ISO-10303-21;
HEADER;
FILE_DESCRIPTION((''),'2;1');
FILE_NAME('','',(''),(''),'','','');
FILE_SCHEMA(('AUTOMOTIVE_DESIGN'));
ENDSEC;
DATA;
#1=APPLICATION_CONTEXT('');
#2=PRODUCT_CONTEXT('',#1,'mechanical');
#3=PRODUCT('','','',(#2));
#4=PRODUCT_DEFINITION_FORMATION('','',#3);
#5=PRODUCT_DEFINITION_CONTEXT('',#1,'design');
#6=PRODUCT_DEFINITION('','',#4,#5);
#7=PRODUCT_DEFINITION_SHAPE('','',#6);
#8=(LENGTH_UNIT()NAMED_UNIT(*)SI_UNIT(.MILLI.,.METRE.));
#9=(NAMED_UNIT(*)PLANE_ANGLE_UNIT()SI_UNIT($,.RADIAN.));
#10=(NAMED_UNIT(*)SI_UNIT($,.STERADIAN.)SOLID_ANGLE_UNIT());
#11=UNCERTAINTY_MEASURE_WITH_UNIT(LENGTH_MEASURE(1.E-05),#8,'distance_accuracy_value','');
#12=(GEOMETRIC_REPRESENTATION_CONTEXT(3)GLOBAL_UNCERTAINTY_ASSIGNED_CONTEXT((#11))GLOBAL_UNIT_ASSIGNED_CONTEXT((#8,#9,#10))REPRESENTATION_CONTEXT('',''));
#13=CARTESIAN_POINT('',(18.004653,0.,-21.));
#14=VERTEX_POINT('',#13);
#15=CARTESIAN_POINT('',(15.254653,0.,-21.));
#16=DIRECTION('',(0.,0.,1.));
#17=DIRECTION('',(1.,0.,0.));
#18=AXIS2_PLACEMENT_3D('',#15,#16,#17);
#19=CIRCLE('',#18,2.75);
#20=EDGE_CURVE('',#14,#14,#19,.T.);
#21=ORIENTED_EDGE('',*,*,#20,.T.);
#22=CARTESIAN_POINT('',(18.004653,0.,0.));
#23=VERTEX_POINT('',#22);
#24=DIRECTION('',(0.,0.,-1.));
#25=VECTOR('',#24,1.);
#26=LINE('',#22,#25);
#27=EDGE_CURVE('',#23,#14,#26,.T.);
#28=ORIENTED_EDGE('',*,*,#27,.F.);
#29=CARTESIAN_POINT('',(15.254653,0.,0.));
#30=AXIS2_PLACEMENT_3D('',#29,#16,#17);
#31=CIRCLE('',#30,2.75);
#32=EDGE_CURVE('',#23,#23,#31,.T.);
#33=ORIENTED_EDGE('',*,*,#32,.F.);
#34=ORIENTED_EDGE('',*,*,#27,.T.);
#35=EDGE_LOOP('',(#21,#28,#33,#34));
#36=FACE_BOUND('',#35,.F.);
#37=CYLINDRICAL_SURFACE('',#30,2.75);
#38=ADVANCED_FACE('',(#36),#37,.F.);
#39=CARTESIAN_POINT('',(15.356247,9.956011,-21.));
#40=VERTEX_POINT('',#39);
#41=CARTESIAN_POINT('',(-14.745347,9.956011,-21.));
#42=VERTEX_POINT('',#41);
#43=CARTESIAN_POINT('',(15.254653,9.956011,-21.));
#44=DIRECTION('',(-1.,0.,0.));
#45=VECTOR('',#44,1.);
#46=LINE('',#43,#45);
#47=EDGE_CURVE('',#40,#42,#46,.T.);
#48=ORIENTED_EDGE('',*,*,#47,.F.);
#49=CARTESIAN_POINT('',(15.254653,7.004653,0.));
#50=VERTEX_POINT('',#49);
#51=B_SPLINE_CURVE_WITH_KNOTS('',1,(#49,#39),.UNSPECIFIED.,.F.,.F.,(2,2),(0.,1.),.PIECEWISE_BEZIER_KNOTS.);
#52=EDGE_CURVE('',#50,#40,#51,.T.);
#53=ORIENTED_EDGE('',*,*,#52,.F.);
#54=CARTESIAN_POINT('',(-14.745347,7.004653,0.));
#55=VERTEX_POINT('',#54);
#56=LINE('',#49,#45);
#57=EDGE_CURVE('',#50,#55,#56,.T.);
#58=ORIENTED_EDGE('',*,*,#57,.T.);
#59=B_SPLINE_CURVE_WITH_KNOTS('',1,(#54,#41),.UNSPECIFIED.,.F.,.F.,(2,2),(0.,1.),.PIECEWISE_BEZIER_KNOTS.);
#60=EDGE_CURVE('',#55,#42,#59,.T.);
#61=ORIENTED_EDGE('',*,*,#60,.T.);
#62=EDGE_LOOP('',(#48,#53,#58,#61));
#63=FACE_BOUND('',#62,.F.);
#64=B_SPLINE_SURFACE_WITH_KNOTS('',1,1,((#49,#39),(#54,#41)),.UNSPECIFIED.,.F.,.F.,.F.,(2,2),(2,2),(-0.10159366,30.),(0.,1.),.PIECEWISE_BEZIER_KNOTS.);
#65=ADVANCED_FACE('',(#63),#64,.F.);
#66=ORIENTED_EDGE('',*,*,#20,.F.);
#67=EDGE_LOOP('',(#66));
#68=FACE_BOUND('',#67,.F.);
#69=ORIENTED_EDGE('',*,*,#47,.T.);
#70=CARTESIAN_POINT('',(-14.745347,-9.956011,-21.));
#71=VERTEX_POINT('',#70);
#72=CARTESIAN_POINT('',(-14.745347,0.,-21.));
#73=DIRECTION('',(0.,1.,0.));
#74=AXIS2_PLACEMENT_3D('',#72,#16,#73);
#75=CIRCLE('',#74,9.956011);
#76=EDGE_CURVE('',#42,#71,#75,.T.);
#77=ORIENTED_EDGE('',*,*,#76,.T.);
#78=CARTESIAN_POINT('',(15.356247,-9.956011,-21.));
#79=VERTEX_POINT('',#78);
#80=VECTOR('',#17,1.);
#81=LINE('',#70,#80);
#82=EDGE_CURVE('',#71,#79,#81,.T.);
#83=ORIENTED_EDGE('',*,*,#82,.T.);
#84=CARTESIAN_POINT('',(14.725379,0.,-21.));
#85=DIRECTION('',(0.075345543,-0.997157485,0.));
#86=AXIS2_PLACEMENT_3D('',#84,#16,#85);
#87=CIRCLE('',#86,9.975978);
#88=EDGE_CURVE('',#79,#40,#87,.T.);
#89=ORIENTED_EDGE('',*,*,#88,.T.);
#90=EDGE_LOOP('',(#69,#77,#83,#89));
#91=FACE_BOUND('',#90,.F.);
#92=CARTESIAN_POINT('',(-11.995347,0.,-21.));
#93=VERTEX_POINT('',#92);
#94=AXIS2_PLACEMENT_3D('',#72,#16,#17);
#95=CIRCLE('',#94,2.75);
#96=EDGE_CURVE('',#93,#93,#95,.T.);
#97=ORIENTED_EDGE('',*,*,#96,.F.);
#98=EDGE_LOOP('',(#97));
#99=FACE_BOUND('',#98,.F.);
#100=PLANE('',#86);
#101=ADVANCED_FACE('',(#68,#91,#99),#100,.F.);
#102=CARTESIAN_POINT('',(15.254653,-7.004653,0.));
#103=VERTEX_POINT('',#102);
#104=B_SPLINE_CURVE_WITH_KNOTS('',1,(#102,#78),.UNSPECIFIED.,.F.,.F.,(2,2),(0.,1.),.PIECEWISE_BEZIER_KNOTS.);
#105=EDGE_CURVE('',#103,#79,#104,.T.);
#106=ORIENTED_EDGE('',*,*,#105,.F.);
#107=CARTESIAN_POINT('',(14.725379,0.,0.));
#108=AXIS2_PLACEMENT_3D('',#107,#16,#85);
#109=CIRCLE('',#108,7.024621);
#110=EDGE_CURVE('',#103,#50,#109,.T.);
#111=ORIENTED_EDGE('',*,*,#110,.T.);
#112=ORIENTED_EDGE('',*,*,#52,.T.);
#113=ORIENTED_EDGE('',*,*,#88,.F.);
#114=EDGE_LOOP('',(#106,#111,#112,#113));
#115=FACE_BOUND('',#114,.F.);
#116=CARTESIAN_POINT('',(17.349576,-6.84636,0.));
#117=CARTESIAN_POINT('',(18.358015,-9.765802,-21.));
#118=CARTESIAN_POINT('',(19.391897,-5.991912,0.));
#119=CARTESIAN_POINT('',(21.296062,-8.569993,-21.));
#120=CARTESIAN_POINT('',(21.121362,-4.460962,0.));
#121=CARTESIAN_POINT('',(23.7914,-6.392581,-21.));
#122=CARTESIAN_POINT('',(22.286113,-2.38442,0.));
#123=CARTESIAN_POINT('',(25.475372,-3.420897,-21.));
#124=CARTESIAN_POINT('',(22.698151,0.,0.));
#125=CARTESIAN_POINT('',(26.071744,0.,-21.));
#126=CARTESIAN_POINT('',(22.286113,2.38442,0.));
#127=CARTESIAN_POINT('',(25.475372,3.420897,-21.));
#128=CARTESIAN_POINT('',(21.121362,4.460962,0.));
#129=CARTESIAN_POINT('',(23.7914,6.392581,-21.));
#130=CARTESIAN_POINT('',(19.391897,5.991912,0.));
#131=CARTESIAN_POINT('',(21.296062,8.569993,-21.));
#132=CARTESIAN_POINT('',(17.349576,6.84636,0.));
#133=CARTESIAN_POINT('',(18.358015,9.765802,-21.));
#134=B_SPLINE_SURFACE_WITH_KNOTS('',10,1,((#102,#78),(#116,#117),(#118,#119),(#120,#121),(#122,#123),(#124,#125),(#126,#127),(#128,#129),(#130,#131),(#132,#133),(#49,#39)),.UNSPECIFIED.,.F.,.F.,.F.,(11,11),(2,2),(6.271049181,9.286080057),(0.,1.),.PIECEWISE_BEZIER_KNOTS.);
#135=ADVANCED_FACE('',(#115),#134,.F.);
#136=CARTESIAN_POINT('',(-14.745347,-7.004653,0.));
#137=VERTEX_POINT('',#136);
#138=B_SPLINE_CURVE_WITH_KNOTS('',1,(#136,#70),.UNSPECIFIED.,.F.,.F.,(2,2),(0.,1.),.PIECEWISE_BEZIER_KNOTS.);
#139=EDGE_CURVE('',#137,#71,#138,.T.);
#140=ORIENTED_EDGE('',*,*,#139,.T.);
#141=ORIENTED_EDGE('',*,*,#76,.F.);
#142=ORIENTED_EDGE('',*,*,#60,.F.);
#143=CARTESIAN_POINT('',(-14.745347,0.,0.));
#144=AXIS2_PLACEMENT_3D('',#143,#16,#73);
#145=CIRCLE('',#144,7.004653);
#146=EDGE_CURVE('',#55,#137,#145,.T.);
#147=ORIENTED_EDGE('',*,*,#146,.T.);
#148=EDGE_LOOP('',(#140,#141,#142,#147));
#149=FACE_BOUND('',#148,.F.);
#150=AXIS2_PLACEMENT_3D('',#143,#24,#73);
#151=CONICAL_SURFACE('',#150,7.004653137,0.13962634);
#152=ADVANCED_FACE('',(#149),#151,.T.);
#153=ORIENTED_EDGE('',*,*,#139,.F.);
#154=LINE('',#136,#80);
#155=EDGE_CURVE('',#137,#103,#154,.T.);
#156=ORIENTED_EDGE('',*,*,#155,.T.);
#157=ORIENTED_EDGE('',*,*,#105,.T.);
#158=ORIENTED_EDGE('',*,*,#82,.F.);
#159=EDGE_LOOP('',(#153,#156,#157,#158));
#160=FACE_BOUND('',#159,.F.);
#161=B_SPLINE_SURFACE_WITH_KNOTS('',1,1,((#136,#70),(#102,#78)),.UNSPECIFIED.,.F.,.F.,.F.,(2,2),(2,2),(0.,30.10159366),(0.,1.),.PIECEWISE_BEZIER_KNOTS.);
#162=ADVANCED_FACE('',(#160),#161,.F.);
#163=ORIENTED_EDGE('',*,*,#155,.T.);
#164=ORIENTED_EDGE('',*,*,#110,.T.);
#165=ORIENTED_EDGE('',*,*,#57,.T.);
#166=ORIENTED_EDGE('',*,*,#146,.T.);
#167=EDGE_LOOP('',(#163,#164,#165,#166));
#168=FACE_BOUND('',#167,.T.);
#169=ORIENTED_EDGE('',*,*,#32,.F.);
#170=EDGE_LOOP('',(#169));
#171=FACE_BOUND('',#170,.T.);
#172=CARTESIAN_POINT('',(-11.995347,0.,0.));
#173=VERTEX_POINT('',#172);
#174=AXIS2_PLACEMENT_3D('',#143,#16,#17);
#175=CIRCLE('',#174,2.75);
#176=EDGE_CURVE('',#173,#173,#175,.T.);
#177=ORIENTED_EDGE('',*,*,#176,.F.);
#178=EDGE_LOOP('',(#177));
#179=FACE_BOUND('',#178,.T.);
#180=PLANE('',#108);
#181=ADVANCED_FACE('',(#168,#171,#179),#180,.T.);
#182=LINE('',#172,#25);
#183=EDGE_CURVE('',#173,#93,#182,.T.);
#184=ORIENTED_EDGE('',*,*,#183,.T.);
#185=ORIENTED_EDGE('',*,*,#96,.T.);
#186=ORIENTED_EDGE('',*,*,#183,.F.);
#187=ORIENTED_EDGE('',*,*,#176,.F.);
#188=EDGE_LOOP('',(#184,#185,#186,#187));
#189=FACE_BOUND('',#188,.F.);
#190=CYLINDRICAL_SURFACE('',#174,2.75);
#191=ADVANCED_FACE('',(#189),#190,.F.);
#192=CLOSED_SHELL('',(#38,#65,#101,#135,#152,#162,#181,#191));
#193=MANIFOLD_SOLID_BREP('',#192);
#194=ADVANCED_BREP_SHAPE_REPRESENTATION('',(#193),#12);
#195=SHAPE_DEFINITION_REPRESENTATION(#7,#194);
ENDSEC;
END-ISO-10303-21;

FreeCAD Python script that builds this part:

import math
import FreeCAD as App
import Part
import Sketcher
from FreeCAD import Vector
Q = App.Units.Quantity

doc = App.newDocument("Part")
params = doc.addObject("Spreadsheet::Sheet", "Params")
for row, (alias, value) in enumerate([
    ("sketch1_width", "30 mm"),
    ("pad1_length", "21 mm"),
    ("pad1_taper", "8 deg"),
    ("sketch2_diameter", "5.5 mm"),
], start=1):
    params.set(f"A{row}", alias)
    params.set(f"B{row}", "=" + value)
    params.setAlias(f"B{row}", alias)

body = doc.addObject("PartDesign::Body", "Body")

# Sketch on XY plane
sketch1 = body.newObject("Sketcher::SketchObject", "Sketch")
sketch1.AttachmentSupport = (doc.getObject("XY_Plane"), [""])
sketch1.MapMode = "FlatFace"
sketch1.addGeometry([
    Part.ArcOfCircle(Part.Circle(Vector(15, 0, 0), Vector(0, 0, 1), 7), math.radians(-86), math.radians(86)),
    Part.LineSegment(Vector(15, 7, 0), Vector(-15, 7, 0)),
    Part.ArcOfCircle(Part.Circle(Vector(-15, 0, 0), Vector(0, 0, 1), 7), math.radians(90), math.radians(270)),
    Part.LineSegment(Vector(-15, -7, 0), Vector(15, -7, 0)),
], False)
sketch1.addConstraint([
    Sketcher.Constraint("Coincident", 0, 2, 1, 1),
    Sketcher.Constraint("Tangent", 1, 2, 2, 1),
    Sketcher.Constraint("Tangent", 2, 2, 3, 1),
    Sketcher.Constraint("Coincident", 3, 2, 0, 1),
    Sketcher.Constraint("Horizontal", 1),
    Sketcher.Constraint("Horizontal", 3),
    Sketcher.Constraint("Symmetric", 0, 2, 3, 2, -1),
    Sketcher.Constraint("DistanceX", 1, 2, 1, 1, Q("30 mm")),
    Sketcher.Constraint("Radius", 0, Q("7.024621 mm")),
    Sketcher.Constraint("Radius", 2, Q("7.004653 mm")),
    Sketcher.Constraint("DistanceX", -1, 1, 0, 3, Q("14.725379 mm")),
])
sketch1.setExpression("Constraints[7]", "Params.sketch1_width")
pad1 = body.newObject("PartDesign::Pad", "Pad")
pad1.Profile = sketch1
pad1.setExpression("Length", "Params.pad1_length")
pad1.Reversed = True
pad1.setExpression("TaperAngle", "Params.pad1_taper")

# Sketch on XY plane
sketch2 = body.newObject("Sketcher::SketchObject", "Sketch001")
sketch2.AttachmentSupport = (doc.getObject("XY_Plane"), [""])
sketch2.MapMode = "FlatFace"
sketch2.addGeometry([
    Part.Circle(Vector(15.3, 0, 0), Vector(0, 0, 1), 2.8),
    Part.Circle(Vector(-14.7, 0, 0), Vector(0, 0, 1), 2.8),
], False)
sketch2.addConstraint([
    Sketcher.Constraint("Equal", 0, 1),
    Sketcher.Constraint("PointOnObject", 0, 3, -1),
    Sketcher.Constraint("PointOnObject", 1, 3, -1),
    Sketcher.Constraint("Diameter", 0, Q("5.5 mm")),
    Sketcher.Constraint("DistanceX", 1, 3, 0, 3, Q("30 mm")),
    Sketcher.Constraint("DistanceX", -1, 1, 0, 3, Q("15.254653 mm")),
])
sketch2.setExpression("Constraints[3]", "Params.sketch2_diameter")
pocket1 = body.newObject("PartDesign::Pocket", "Pocket")
pocket1.Profile = sketch2
pocket1.Type = "ThroughAll"

doc.recompute()
